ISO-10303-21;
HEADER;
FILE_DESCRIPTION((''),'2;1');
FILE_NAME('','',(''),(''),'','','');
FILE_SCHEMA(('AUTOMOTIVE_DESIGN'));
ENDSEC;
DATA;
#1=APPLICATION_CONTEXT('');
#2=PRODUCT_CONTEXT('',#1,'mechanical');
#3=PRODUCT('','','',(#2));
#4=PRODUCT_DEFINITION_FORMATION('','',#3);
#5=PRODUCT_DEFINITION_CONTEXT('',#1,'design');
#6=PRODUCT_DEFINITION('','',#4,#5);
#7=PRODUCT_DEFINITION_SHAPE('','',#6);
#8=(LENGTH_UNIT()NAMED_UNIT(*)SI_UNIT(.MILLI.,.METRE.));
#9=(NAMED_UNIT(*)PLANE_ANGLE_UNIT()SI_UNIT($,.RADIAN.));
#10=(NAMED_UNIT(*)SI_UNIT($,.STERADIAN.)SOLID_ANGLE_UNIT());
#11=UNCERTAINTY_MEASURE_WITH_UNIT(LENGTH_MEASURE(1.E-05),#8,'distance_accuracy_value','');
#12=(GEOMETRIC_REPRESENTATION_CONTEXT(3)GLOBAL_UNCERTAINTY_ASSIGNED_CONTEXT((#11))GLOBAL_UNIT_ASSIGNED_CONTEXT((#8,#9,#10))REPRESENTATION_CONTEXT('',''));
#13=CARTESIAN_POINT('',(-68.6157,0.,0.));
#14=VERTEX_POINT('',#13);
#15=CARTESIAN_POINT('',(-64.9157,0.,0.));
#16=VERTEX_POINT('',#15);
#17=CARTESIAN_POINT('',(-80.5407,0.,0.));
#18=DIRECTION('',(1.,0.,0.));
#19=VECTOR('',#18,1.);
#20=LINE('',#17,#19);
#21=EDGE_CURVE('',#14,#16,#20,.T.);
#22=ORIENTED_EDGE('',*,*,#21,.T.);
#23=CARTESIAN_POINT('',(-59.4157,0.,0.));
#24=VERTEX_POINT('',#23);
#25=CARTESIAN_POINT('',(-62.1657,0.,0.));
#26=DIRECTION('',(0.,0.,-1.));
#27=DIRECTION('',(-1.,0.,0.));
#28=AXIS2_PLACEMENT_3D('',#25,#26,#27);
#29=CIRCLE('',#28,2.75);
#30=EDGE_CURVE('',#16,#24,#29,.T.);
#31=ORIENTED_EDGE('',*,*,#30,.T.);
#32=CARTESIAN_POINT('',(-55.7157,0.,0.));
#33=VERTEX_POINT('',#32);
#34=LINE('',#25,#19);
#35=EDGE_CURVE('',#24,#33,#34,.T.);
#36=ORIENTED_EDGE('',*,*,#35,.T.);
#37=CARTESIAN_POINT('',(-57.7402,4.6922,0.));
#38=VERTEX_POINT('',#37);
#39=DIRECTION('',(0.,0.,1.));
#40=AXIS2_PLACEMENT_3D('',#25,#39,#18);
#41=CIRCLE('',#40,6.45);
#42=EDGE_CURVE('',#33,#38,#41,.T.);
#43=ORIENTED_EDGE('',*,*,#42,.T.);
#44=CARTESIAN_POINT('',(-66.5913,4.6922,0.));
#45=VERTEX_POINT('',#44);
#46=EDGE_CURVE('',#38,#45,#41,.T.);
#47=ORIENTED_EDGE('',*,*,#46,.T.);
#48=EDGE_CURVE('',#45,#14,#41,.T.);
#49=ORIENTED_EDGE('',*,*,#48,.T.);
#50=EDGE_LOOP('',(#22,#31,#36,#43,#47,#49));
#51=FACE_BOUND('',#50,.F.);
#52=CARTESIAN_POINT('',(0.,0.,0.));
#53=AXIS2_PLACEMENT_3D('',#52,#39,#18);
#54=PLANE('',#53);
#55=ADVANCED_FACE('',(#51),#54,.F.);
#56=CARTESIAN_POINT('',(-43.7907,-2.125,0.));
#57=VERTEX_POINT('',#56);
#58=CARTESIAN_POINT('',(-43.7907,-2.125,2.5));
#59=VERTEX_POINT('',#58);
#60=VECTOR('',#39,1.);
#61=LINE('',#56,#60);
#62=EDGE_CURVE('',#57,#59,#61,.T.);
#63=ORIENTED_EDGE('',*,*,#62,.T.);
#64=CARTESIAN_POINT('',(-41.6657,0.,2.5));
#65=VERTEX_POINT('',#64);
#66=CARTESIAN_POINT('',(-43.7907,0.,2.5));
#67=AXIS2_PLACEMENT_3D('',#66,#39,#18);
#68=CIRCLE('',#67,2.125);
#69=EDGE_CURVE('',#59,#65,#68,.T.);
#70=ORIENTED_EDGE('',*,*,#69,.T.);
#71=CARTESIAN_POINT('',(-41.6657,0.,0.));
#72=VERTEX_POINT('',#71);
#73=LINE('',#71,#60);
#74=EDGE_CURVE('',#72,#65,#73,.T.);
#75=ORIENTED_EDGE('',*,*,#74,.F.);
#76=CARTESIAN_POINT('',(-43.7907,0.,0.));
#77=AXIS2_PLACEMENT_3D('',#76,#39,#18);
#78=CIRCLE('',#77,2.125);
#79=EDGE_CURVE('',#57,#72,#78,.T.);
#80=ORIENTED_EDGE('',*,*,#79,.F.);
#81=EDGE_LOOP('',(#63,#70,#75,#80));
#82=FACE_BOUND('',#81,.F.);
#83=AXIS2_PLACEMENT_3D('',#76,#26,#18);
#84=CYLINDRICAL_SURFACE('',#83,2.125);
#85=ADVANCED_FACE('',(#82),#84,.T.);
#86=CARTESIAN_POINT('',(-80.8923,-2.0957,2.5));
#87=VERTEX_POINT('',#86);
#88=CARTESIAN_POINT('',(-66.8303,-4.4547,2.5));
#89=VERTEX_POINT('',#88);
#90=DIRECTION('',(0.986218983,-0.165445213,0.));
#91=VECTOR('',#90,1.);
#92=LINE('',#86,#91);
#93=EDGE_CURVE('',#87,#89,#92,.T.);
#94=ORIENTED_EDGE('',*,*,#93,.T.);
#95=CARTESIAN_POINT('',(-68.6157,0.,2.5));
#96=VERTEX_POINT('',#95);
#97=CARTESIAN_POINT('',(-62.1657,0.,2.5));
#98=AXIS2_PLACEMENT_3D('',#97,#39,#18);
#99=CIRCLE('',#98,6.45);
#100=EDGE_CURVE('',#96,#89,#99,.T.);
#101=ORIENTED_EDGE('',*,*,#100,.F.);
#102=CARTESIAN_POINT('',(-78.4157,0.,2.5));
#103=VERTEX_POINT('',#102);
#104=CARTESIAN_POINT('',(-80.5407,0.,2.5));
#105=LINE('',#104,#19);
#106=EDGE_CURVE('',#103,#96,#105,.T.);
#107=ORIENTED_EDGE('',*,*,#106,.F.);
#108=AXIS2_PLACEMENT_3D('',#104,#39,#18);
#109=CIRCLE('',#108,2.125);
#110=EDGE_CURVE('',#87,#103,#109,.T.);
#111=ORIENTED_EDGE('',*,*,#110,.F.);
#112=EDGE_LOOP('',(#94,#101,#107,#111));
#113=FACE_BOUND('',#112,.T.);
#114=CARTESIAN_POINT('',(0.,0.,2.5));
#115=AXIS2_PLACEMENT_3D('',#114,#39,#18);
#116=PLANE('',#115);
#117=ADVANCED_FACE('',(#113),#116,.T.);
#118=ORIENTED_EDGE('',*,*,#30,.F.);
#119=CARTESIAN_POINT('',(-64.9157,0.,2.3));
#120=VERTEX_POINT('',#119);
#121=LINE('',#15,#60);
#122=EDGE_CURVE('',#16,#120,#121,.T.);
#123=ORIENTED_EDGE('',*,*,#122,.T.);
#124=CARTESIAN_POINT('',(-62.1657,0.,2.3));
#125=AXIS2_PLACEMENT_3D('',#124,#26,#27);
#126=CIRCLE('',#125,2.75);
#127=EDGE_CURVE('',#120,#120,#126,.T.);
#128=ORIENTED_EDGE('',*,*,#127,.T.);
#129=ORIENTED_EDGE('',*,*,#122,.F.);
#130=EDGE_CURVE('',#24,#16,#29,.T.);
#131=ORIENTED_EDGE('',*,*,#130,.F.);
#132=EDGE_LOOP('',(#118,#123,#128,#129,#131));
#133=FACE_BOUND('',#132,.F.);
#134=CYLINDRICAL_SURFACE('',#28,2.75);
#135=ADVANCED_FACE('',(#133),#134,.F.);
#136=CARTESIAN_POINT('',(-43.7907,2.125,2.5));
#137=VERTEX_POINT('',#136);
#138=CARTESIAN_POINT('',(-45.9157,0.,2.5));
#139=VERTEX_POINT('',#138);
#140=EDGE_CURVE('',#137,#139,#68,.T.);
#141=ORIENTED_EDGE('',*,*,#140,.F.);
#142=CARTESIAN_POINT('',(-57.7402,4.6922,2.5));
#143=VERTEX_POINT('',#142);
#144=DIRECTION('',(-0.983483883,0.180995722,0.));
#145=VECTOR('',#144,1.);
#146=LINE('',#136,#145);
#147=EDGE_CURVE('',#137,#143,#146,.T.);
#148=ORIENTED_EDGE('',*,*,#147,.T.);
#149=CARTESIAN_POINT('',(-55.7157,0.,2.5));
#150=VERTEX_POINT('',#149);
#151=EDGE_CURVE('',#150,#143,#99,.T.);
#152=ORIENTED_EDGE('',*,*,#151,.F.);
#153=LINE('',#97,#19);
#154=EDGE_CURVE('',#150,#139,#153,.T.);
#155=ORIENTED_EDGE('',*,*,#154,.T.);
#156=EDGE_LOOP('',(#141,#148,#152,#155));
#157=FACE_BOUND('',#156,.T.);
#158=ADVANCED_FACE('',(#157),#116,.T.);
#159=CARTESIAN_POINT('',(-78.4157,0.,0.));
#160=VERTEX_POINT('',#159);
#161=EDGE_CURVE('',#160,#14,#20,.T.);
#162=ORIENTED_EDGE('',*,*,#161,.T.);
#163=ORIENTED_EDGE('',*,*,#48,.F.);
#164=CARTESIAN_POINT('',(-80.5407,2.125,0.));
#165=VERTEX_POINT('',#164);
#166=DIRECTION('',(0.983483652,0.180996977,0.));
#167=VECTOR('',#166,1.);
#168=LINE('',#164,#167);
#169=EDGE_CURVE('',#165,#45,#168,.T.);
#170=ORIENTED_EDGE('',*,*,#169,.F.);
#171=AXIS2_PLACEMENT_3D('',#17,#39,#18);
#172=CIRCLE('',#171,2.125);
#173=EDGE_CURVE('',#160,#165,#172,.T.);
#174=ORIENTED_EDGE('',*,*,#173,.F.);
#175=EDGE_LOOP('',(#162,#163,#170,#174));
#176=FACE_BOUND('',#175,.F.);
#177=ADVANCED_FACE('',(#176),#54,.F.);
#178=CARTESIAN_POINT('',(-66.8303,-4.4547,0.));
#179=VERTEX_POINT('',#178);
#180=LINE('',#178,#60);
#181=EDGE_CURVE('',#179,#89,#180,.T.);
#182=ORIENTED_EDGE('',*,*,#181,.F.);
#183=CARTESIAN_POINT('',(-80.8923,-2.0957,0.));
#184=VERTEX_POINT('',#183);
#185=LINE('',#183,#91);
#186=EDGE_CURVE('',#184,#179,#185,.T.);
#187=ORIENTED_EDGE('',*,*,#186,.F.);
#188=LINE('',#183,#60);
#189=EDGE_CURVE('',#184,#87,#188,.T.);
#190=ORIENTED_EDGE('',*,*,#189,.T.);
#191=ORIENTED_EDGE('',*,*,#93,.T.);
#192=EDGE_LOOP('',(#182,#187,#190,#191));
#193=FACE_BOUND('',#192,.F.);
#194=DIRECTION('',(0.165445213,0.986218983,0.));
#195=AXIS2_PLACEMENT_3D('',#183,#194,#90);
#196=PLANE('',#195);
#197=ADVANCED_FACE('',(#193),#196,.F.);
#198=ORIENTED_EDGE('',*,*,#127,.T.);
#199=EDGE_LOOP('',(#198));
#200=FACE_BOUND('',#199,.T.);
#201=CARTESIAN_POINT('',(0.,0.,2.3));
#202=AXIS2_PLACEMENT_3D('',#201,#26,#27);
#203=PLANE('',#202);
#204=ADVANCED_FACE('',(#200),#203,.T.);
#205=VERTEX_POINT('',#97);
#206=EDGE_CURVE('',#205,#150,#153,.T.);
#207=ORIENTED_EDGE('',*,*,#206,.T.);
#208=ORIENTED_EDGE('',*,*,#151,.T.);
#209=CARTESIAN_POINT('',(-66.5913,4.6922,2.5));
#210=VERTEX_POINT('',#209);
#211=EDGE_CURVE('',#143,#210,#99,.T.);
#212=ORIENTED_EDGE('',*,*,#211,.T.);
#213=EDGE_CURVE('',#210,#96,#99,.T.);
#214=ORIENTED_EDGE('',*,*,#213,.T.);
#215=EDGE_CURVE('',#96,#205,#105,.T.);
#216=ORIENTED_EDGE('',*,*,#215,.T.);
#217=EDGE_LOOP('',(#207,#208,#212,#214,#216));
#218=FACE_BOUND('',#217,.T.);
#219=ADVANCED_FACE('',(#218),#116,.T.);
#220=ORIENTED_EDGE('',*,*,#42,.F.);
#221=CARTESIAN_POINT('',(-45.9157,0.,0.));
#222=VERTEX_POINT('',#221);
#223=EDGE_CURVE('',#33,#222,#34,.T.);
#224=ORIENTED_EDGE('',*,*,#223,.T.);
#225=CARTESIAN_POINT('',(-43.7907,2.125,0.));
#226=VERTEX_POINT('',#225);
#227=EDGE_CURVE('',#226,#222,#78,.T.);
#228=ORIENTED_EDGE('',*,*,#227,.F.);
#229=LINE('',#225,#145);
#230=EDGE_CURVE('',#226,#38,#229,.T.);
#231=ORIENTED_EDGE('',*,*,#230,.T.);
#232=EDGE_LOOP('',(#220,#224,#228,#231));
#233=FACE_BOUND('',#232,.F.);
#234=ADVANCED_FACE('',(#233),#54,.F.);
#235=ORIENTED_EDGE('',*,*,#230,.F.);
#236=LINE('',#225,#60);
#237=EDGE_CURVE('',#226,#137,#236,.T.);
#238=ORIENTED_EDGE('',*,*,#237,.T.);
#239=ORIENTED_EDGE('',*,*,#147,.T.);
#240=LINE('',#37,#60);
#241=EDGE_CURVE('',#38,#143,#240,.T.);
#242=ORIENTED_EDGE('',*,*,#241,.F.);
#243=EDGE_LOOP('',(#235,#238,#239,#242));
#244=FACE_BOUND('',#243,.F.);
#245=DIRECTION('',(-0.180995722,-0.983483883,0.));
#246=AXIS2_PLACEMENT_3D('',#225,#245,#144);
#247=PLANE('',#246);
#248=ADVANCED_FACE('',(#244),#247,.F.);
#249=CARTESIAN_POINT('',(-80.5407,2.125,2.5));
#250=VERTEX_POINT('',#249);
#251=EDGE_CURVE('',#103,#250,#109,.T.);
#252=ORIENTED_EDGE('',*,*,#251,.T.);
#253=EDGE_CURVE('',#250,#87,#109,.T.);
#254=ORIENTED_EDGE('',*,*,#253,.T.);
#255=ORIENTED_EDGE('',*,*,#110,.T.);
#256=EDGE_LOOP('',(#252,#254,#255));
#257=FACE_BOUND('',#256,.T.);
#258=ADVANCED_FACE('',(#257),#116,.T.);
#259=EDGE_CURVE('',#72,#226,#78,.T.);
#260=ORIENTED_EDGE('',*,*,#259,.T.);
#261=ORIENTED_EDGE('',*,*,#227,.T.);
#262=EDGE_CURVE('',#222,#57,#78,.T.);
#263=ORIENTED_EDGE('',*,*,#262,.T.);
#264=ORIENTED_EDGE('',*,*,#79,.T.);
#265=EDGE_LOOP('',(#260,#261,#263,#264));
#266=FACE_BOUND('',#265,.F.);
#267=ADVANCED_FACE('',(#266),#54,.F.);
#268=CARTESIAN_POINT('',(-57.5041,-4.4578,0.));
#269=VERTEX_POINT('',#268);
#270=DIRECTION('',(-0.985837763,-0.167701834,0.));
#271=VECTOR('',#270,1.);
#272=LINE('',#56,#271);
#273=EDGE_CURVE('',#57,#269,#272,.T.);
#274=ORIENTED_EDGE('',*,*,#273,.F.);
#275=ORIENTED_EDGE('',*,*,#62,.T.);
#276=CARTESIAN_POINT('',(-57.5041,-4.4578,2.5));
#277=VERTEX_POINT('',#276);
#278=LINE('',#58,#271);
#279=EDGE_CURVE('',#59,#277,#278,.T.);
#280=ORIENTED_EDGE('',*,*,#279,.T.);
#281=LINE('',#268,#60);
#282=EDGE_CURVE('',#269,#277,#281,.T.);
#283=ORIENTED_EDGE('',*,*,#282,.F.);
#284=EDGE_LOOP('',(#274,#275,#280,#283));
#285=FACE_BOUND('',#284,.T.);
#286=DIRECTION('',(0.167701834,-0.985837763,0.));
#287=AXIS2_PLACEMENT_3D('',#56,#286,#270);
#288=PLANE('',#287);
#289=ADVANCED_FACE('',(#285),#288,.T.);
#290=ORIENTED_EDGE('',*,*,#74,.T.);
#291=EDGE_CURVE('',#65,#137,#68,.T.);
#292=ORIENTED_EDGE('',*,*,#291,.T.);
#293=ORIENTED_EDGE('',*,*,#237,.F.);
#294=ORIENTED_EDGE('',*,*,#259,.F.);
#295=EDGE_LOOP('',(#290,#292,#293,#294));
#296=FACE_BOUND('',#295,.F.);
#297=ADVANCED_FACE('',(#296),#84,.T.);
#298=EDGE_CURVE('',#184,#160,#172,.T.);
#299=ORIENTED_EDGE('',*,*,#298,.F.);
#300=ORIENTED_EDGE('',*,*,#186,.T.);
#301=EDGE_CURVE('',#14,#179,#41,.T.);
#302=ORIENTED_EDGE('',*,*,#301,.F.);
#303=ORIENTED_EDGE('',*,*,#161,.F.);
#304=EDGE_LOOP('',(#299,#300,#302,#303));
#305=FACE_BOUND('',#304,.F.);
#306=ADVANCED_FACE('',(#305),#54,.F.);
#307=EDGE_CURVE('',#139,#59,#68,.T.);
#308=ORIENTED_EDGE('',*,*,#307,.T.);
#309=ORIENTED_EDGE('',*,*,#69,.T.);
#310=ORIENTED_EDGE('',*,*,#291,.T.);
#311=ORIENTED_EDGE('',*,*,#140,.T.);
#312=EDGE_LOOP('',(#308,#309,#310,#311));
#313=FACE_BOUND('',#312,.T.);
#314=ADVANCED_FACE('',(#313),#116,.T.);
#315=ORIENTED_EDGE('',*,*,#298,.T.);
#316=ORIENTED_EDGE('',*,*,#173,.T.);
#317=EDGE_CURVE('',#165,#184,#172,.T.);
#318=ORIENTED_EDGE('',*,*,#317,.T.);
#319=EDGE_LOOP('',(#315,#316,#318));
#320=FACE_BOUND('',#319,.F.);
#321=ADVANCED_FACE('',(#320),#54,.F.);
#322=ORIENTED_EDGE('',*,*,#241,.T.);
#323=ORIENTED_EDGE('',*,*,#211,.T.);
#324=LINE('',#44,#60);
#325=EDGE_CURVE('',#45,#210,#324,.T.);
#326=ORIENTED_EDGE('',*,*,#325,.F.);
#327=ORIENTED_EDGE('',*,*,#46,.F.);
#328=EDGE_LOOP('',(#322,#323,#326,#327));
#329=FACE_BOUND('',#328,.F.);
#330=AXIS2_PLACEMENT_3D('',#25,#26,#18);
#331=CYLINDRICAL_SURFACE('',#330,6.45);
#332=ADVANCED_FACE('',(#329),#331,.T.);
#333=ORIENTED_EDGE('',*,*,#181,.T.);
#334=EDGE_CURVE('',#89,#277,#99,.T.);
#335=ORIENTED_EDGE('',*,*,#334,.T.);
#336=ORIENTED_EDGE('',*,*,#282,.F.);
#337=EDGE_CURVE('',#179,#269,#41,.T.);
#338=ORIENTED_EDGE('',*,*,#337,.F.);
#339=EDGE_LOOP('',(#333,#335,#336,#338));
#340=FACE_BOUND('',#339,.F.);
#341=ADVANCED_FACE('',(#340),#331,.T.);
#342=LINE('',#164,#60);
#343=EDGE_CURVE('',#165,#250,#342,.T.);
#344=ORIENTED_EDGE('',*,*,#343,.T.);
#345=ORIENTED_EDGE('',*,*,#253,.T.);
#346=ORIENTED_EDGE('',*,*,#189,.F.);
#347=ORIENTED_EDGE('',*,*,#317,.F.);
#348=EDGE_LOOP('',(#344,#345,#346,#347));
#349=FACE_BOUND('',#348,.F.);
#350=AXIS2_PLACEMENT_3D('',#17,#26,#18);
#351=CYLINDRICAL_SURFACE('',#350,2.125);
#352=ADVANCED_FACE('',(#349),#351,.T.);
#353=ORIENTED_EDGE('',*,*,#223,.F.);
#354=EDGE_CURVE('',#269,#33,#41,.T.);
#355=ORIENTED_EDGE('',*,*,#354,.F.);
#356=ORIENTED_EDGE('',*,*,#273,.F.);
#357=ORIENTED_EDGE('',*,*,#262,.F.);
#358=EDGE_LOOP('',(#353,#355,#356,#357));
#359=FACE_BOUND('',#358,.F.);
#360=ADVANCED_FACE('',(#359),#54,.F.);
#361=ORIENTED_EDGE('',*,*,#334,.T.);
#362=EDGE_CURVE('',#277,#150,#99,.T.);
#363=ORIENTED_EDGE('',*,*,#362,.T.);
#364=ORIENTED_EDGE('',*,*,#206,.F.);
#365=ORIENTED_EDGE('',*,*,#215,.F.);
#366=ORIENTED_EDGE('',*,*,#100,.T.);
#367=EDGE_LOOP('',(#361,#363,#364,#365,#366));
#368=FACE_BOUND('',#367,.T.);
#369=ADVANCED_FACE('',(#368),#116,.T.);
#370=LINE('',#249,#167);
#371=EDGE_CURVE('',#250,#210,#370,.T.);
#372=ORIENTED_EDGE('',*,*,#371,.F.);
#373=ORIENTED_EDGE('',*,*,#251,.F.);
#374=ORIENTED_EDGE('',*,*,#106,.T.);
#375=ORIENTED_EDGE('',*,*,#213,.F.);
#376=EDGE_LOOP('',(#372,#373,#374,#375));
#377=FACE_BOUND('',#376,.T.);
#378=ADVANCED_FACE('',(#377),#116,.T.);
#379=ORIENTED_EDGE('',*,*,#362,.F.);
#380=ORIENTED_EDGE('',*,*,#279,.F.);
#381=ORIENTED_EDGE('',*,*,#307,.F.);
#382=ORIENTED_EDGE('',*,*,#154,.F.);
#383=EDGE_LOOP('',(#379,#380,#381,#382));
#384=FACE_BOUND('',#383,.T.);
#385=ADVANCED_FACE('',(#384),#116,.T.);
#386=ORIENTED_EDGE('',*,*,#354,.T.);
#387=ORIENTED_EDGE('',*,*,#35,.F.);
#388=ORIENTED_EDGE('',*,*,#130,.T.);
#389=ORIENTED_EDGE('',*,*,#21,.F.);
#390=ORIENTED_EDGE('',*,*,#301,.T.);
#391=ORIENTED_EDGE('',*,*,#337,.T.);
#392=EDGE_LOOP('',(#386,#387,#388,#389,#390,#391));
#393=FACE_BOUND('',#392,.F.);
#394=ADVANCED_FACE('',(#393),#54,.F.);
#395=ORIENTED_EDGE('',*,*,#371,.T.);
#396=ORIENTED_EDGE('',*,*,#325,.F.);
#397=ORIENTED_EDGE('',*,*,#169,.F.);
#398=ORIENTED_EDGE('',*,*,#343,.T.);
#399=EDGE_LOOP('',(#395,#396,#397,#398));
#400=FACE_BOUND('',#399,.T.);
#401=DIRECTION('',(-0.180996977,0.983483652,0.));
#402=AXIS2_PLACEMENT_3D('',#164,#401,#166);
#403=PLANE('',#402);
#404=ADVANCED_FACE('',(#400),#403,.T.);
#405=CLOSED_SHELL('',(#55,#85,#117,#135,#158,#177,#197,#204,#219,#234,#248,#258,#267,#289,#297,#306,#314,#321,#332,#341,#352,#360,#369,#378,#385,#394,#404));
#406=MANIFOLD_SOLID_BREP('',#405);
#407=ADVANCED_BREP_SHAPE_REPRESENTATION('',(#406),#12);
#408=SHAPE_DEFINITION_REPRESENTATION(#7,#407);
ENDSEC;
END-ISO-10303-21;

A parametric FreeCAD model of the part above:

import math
import FreeCAD as App
import Part
import Sketcher

V = App.Vector

doc = App.newDocument("Part")
body = doc.addObject("PartDesign::Body", "Body")

# Sketch on XY plane
sketch1 = doc.addObject("Sketcher::SketchObject", "Sketch")
body.addObject(sketch1)
sketch1.AttachmentSupport = (doc.XY_Plane, [""])
sketch1.MapMode = "FlatFace"
sketch1.addGeometry(Part.ArcOfCircle(Part.Circle(V(-80.5407, 0, 0), V(0, 0, 1), 2.125), math.radians(90), math.radians(260.476064)), False)
sketch1.addGeometry(Part.LineSegment(V(-80.8923, -2.0957, 0), V(-66.8303, -4.4547, 0)), False)
sketch1.addGeometry(Part.ArcOfCircle(Part.Circle(V(-62.1657, 0, 0), V(0, 0, 1), 6.45), math.radians(-136.318551), math.radians(-43.719769)), False)
sketch1.addGeometry(Part.LineSegment(V(-57.5041, -4.4578, 0), V(-43.7907, -2.125, 0)), False)
sketch1.addGeometry(Part.ArcOfCircle(Part.Circle(V(-43.7907, 0, 0), V(0, 0, 1), 2.125), math.radians(-90), math.radians(90)), False)
sketch1.addGeometry(Part.LineSegment(V(-43.7907, 2.125, 0), V(-57.7402, 4.6922, 0)), False)
sketch1.addGeometry(Part.ArcOfCircle(Part.Circle(V(-62.1657, 0, 0), V(0, 0, 1), 6.45), math.radians(46.67547), math.radians(133.325177)), False)
sketch1.addGeometry(Part.LineSegment(V(-66.5913, 4.6922, 0), V(-80.5407, 2.125, 0)), False)
sketch1.addConstraint(Sketcher.Constraint("Tangent", 0, 2, 1, 1))
sketch1.addConstraint(Sketcher.Constraint("Coincident", 1, 2, 2, 1))
sketch1.addConstraint(Sketcher.Constraint("Coincident", 2, 2, 3, 1))
sketch1.addConstraint(Sketcher.Constraint("Coincident", 3, 2, 4, 1))
sketch1.addConstraint(Sketcher.Constraint("Coincident", 4, 2, 5, 1))
sketch1.addConstraint(Sketcher.Constraint("Coincident", 5, 2, 6, 1))
sketch1.addConstraint(Sketcher.Constraint("Coincident", 6, 2, 7, 1))
sketch1.addConstraint(Sketcher.Constraint("Coincident", 7, 2, 0, 1))
sketch1.addConstraint(Sketcher.Constraint("Coincident", 6, 3, 2, 3))
sketch1.addConstraint(Sketcher.Constraint("Equal", 0, 4))
sketch1.addConstraint(Sketcher.Constraint("Equal", 2, 6))
sketch1.addConstraint(Sketcher.Constraint("Symmetric", 3, 2, 4, 2, -1))
sketch1.addConstraint(Sketcher.Constraint("PointOnObject", 0, 3, -1))
sketch1.addConstraint(Sketcher.Constraint("PointOnObject", 2, 3, -1))
sketch1.addConstraint(Sketcher.Constraint("Horizontal", 5, 2, 6, 2))
sketch1.addConstraint(Sketcher.Constraint("Vertical", 4, 3, 3, 2))
sketch1.addConstraint(Sketcher.Constraint("Vertical", 0, 3, 7, 2))
sketch1.addConstraint(Sketcher.Constraint("Equal", 5, 7))
sketch1.addConstraint(Sketcher.Constraint("Radius", 2, 6.45))
sketch1.addConstraint(Sketcher.Constraint("Radius", 0, 2.125))
sketch1.addConstraint(Sketcher.Constraint("DistanceY", 2, 2, 5, 2, 9.15))
sketch1.addConstraint(Sketcher.Constraint("DistanceX", 0, 3, 4, 3, 36.75))
sketch1.addConstraint(Sketcher.Constraint("DistanceX", 1, 2, 5, 2, 9.09))
sketch1.addConstraint(Sketcher.Constraint("DistanceX", 2, 2, -1, 1, 57.504))
sketch1.addConstraint(Sketcher.Constraint("DistanceX", 0, 2, 1, 2, 14.062))
pad1 = doc.addObject("PartDesign::Pad", "Pad")
body.addObject(pad1)
pad1.Profile = sketch1
pad1.Length = 2.5

# Sketch on XY plane
sketch2 = doc.addObject("Sketcher::SketchObject", "Sketch001")
body.addObject(sketch2)
sketch2.AttachmentSupport = (doc.XY_Plane, [""])
sketch2.MapMode = "FlatFace"
sketch2.addGeometry(Part.Circle(V(-62.1657, 0, 0), V(0, 0, 1), 2.75), False)
sketch2.addConstraint(Sketcher.Constraint("PointOnObject", 0, 3, -1))
sketch2.addConstraint(Sketcher.Constraint("Diameter", 0, 5.5))
sketch2.addConstraint(Sketcher.Constraint("DistanceX", 0, 3, -1, 1, 62.1657))
pocket1 = doc.addObject("PartDesign::Pocket", "Pocket")
body.addObject(pocket1)
pocket1.Profile = sketch2
pocket1.Length = 2.3
pocket1.Reversed = True

doc.recompute()
